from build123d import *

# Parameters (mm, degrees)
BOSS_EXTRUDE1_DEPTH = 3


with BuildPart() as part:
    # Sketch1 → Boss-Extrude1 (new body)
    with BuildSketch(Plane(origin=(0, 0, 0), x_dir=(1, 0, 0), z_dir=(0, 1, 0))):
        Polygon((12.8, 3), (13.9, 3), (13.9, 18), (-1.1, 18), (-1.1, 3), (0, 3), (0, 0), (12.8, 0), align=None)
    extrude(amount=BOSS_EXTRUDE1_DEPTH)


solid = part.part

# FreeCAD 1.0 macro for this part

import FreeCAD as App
import Part
import Sketcher
Q = App.Units.Quantity

doc = App.newDocument("Part")
params = doc.addObject("Spreadsheet::Sheet", "Params")
for row, (alias, value) in enumerate([
    ("sketch1_width", "15 mm"),
    ("sketch1_height", "3 mm"),
    ("sketch1_width2", "1.1 mm"),
    ("pad1_length", "3 mm"),
], start=1):
    params.set(f"A{row}", alias)
    params.set(f"B{row}", "=" + value)
    params.setAlias(f"B{row}", alias)

body = doc.addObject("PartDesign::Body", "Body")

sketch1 = body.newObject("Sketcher::SketchObject", "Sketch")
sketch1.AttachmentSupport = (doc.getObject("XZ_Plane"), [""])
sketch1.MapMode = "FlatFace"
sketch1.addGeometry(Part.LineSegment(App.Vector(12.8, -3, 0), App.Vector(13.9, -3, 0)), False)
sketch1.addGeometry(Part.LineSegment(App.Vector(13.9, -3, 0), App.Vector(13.9, -18, 0)), False)
sketch1.addGeometry(Part.LineSegment(App.Vector(13.9, -18, 0), App.Vector(-1.1, -18, 0)), False)
sketch1.addGeometry(Part.LineSegment(App.Vector(-1.1, -18, 0), App.Vector(-1.1, -3, 0)), False)
sketch1.addGeometry(Part.LineSegment(App.Vector(-1.1, -3, 0), App.Vector(0, -3, 0)), False)
sketch1.addGeometry(Part.LineSegment(App.Vector(0, -3, 0), App.Vector(0, 0, 0)), False)
sketch1.addGeometry(Part.LineSegment(App.Vector(0, 0, 0), App.Vector(12.8, 0, 0)), False)
sketch1.addGeometry(Part.LineSegment(App.Vector(12.8, 0, 0), App.Vector(12.8, -3, 0)), False)
sketch1.addConstraint(Sketcher.Constraint("Coincident", 0, 2, 1, 1))
sketch1.addConstraint(Sketcher.Constraint("Coincident", 1, 2, 2, 1))
sketch1.addConstraint(Sketcher.Constraint("Coincident", 2, 2, 3, 1))
sketch1.addConstraint(Sketcher.Constraint("Coincident", 3, 2, 4, 1))
sketch1.addConstraint(Sketcher.Constraint("Coincident", 4, 2, 5, 1))
sketch1.addConstraint(Sketcher.Constraint("Coincident", 5, 2, 6, 1))
sketch1.addConstraint(Sketcher.Constraint("Coincident", 6, 2, 7, 1))
sketch1.addConstraint(Sketcher.Constraint("Coincident", 7, 2, 0, 1))
sketch1.addConstraint(Sketcher.Constraint("Horizontal", 0))
sketch1.addConstraint(Sketcher.Constraint("Vertical", 1))
sketch1.addConstraint(Sketcher.Constraint("Horizontal", 2))
sketch1.addConstraint(Sketcher.Constraint("Vertical", 3))
sketch1.addConstraint(Sketcher.Constraint("Horizontal", 4))
sketch1.addConstraint(Sketcher.Constraint("Vertical", 5))
sketch1.addConstraint(Sketcher.Constraint("Horizontal", 6))
sketch1.addConstraint(Sketcher.Constraint("Vertical", 7))
sketch1.addConstraint(Sketcher.Constraint("Coincident", 5, 2, -1, 1))
sketch1.addConstraint(Sketcher.Constraint("Horizontal", 0, 2, 3, 2))
sketch1.addConstraint(Sketcher.Constraint("Equal", 0, 4))
sketch1.addConstraint(Sketcher.Constraint("Equal", 2, 1))
sketch1.addConstraint(Sketcher.Constraint("DistanceX", 2, 2, 2, 1, Q("15 mm")))
sketch1.addConstraint(Sketcher.Constraint("DistanceY", 5, 1, 5, 2, Q("3 mm")))
sketch1.addConstraint(Sketcher.Constraint("DistanceX", 0, 1, 0, 2, Q("1.1 mm")))
sketch1.setExpression("Constraints[20]", "Params.sketch1_width")
sketch1.setExpression("Constraints[21]", "Params.sketch1_height")
sketch1.setExpression("Constraints[22]", "Params.sketch1_width2")
pad1 = body.newObject("PartDesign::Pad", "Pad")
pad1.Profile = sketch1
pad1.setExpression("Length", "Params.pad1_length")
pad1.Reversed = True

doc.recompute()
